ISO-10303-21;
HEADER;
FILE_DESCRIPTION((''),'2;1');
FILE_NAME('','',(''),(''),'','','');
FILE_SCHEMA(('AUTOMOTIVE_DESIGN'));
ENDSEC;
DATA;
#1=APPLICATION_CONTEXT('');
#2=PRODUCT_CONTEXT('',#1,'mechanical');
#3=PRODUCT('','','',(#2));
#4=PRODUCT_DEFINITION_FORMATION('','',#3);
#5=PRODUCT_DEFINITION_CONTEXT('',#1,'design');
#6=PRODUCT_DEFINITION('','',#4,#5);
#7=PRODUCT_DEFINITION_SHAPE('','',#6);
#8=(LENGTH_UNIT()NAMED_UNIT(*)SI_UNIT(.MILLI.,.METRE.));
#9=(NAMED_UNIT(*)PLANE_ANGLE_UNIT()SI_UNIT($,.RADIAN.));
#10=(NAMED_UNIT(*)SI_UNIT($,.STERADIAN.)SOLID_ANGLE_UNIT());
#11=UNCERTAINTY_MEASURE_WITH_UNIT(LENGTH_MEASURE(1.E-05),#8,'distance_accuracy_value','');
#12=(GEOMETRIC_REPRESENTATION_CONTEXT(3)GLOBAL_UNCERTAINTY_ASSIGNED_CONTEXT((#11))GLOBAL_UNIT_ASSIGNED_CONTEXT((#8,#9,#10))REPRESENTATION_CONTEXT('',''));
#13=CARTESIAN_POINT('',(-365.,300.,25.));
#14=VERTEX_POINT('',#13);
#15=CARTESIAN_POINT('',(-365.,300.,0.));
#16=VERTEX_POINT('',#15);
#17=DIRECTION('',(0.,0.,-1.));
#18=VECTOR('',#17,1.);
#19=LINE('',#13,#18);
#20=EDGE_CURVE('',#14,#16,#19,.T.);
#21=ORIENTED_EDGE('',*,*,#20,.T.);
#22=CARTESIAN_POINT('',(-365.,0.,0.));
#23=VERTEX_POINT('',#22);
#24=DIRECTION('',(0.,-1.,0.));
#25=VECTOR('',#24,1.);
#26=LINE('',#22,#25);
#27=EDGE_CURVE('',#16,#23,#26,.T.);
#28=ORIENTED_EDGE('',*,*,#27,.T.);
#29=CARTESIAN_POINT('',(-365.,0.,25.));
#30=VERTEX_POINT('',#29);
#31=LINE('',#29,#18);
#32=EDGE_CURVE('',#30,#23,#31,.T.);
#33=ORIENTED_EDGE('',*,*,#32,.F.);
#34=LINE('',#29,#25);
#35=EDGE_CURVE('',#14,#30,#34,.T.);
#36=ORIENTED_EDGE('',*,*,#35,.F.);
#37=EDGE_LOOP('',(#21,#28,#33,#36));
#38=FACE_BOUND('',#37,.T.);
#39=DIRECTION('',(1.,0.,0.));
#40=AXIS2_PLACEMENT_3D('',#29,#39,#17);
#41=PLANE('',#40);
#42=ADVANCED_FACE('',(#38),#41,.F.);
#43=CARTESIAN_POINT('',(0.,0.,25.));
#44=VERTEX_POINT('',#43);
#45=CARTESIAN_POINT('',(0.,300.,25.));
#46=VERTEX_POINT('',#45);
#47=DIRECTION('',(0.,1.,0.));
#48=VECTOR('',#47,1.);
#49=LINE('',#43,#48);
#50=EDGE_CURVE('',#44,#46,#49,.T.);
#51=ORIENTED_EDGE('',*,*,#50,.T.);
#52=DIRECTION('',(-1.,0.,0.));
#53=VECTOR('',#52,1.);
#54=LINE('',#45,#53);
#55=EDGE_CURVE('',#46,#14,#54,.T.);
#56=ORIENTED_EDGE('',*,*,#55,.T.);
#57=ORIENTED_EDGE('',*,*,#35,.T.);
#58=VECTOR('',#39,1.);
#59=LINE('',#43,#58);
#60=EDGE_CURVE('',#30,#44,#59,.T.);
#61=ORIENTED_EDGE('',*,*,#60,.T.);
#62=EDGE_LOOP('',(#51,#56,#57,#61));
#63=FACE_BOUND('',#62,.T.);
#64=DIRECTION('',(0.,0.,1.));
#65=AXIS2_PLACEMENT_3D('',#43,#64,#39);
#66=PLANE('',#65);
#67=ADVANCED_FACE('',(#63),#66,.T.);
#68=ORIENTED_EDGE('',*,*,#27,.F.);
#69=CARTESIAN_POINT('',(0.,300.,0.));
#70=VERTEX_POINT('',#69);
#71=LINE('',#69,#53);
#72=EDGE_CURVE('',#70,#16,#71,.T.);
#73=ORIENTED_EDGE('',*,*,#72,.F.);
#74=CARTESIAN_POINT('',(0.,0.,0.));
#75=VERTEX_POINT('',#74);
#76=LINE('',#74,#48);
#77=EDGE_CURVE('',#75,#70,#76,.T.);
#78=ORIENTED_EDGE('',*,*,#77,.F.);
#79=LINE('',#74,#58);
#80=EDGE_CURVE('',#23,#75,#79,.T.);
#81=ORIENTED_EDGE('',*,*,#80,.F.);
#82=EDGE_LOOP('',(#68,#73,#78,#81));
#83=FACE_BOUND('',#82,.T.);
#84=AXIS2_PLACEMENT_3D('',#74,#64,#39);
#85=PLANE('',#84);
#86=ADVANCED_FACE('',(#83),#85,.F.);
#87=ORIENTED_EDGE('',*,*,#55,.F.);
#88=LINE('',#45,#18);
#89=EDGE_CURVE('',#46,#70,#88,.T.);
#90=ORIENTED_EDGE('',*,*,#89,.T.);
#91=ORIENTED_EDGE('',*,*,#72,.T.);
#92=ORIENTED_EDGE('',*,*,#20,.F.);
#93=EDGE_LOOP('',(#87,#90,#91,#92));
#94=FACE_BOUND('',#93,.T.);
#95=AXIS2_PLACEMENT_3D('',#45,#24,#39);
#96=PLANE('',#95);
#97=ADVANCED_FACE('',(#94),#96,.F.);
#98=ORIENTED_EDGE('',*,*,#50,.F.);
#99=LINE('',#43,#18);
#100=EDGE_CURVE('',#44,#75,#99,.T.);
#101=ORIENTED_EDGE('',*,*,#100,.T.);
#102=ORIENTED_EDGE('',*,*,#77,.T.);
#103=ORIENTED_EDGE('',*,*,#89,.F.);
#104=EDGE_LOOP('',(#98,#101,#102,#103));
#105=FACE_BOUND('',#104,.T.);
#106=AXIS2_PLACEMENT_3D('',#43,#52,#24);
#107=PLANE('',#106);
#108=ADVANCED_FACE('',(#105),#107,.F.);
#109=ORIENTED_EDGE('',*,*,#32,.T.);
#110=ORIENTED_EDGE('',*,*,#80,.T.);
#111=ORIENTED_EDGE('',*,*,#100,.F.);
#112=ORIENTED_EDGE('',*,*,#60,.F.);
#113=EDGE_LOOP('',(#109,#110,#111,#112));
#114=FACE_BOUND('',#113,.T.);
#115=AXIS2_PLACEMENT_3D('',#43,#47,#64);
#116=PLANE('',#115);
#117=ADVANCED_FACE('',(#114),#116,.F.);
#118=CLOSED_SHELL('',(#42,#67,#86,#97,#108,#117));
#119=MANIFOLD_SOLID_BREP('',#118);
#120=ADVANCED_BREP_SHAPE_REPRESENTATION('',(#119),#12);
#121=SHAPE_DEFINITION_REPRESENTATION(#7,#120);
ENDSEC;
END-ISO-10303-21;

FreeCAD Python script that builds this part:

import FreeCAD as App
import Part
import Sketcher

V = App.Vector
Q = App.Units.Quantity


def add_polygon(sketch, points):
    """Adds a closed chain of lines whose ends are joined by coincident constraints."""
    first, n = sketch.GeometryCount, len(points)
    for a, b in zip(points, points[1:] + points[:1]):
        sketch.addGeometry(Part.LineSegment(App.Vector(*a, 0), App.Vector(*b, 0)), False)
    for i in range(n):
        sketch.addConstraint(Sketcher.Constraint("Coincident", first + i, 2, first + (i + 1) % n, 1))

doc = App.newDocument("Part")
body = doc.addObject("PartDesign::Body", "Body")

# Sketch on XY plane
sketch1 = body.newObject("Sketcher::SketchObject", "Sketch")
sketch1.AttachmentSupport = (doc.getObject("XY_Plane"), [""])
sketch1.MapMode = "FlatFace"
add_polygon(sketch1, [(-365, 300), (-365, 0), (0, 0), (0, 300)])  # lines 0-3
sketch1.addConstraint([
    Sketcher.Constraint("Vertical", 0),
    Sketcher.Constraint("Horizontal", 1),
    Sketcher.Constraint("Vertical", 2),
    Sketcher.Constraint("Horizontal", 3),
    Sketcher.Constraint("Coincident", 1, 2, -1, 1),
    Sketcher.Constraint("DistanceX", 1, 1, 1, 2, Q("365 mm")),
    Sketcher.Constraint("DistanceY", 0, 2, 0, 1, Q("300 mm")),
])
pad1 = body.newObject("PartDesign::Pad", "Pad")
pad1.Profile = sketch1
pad1.Length = 25

doc.recompute()
